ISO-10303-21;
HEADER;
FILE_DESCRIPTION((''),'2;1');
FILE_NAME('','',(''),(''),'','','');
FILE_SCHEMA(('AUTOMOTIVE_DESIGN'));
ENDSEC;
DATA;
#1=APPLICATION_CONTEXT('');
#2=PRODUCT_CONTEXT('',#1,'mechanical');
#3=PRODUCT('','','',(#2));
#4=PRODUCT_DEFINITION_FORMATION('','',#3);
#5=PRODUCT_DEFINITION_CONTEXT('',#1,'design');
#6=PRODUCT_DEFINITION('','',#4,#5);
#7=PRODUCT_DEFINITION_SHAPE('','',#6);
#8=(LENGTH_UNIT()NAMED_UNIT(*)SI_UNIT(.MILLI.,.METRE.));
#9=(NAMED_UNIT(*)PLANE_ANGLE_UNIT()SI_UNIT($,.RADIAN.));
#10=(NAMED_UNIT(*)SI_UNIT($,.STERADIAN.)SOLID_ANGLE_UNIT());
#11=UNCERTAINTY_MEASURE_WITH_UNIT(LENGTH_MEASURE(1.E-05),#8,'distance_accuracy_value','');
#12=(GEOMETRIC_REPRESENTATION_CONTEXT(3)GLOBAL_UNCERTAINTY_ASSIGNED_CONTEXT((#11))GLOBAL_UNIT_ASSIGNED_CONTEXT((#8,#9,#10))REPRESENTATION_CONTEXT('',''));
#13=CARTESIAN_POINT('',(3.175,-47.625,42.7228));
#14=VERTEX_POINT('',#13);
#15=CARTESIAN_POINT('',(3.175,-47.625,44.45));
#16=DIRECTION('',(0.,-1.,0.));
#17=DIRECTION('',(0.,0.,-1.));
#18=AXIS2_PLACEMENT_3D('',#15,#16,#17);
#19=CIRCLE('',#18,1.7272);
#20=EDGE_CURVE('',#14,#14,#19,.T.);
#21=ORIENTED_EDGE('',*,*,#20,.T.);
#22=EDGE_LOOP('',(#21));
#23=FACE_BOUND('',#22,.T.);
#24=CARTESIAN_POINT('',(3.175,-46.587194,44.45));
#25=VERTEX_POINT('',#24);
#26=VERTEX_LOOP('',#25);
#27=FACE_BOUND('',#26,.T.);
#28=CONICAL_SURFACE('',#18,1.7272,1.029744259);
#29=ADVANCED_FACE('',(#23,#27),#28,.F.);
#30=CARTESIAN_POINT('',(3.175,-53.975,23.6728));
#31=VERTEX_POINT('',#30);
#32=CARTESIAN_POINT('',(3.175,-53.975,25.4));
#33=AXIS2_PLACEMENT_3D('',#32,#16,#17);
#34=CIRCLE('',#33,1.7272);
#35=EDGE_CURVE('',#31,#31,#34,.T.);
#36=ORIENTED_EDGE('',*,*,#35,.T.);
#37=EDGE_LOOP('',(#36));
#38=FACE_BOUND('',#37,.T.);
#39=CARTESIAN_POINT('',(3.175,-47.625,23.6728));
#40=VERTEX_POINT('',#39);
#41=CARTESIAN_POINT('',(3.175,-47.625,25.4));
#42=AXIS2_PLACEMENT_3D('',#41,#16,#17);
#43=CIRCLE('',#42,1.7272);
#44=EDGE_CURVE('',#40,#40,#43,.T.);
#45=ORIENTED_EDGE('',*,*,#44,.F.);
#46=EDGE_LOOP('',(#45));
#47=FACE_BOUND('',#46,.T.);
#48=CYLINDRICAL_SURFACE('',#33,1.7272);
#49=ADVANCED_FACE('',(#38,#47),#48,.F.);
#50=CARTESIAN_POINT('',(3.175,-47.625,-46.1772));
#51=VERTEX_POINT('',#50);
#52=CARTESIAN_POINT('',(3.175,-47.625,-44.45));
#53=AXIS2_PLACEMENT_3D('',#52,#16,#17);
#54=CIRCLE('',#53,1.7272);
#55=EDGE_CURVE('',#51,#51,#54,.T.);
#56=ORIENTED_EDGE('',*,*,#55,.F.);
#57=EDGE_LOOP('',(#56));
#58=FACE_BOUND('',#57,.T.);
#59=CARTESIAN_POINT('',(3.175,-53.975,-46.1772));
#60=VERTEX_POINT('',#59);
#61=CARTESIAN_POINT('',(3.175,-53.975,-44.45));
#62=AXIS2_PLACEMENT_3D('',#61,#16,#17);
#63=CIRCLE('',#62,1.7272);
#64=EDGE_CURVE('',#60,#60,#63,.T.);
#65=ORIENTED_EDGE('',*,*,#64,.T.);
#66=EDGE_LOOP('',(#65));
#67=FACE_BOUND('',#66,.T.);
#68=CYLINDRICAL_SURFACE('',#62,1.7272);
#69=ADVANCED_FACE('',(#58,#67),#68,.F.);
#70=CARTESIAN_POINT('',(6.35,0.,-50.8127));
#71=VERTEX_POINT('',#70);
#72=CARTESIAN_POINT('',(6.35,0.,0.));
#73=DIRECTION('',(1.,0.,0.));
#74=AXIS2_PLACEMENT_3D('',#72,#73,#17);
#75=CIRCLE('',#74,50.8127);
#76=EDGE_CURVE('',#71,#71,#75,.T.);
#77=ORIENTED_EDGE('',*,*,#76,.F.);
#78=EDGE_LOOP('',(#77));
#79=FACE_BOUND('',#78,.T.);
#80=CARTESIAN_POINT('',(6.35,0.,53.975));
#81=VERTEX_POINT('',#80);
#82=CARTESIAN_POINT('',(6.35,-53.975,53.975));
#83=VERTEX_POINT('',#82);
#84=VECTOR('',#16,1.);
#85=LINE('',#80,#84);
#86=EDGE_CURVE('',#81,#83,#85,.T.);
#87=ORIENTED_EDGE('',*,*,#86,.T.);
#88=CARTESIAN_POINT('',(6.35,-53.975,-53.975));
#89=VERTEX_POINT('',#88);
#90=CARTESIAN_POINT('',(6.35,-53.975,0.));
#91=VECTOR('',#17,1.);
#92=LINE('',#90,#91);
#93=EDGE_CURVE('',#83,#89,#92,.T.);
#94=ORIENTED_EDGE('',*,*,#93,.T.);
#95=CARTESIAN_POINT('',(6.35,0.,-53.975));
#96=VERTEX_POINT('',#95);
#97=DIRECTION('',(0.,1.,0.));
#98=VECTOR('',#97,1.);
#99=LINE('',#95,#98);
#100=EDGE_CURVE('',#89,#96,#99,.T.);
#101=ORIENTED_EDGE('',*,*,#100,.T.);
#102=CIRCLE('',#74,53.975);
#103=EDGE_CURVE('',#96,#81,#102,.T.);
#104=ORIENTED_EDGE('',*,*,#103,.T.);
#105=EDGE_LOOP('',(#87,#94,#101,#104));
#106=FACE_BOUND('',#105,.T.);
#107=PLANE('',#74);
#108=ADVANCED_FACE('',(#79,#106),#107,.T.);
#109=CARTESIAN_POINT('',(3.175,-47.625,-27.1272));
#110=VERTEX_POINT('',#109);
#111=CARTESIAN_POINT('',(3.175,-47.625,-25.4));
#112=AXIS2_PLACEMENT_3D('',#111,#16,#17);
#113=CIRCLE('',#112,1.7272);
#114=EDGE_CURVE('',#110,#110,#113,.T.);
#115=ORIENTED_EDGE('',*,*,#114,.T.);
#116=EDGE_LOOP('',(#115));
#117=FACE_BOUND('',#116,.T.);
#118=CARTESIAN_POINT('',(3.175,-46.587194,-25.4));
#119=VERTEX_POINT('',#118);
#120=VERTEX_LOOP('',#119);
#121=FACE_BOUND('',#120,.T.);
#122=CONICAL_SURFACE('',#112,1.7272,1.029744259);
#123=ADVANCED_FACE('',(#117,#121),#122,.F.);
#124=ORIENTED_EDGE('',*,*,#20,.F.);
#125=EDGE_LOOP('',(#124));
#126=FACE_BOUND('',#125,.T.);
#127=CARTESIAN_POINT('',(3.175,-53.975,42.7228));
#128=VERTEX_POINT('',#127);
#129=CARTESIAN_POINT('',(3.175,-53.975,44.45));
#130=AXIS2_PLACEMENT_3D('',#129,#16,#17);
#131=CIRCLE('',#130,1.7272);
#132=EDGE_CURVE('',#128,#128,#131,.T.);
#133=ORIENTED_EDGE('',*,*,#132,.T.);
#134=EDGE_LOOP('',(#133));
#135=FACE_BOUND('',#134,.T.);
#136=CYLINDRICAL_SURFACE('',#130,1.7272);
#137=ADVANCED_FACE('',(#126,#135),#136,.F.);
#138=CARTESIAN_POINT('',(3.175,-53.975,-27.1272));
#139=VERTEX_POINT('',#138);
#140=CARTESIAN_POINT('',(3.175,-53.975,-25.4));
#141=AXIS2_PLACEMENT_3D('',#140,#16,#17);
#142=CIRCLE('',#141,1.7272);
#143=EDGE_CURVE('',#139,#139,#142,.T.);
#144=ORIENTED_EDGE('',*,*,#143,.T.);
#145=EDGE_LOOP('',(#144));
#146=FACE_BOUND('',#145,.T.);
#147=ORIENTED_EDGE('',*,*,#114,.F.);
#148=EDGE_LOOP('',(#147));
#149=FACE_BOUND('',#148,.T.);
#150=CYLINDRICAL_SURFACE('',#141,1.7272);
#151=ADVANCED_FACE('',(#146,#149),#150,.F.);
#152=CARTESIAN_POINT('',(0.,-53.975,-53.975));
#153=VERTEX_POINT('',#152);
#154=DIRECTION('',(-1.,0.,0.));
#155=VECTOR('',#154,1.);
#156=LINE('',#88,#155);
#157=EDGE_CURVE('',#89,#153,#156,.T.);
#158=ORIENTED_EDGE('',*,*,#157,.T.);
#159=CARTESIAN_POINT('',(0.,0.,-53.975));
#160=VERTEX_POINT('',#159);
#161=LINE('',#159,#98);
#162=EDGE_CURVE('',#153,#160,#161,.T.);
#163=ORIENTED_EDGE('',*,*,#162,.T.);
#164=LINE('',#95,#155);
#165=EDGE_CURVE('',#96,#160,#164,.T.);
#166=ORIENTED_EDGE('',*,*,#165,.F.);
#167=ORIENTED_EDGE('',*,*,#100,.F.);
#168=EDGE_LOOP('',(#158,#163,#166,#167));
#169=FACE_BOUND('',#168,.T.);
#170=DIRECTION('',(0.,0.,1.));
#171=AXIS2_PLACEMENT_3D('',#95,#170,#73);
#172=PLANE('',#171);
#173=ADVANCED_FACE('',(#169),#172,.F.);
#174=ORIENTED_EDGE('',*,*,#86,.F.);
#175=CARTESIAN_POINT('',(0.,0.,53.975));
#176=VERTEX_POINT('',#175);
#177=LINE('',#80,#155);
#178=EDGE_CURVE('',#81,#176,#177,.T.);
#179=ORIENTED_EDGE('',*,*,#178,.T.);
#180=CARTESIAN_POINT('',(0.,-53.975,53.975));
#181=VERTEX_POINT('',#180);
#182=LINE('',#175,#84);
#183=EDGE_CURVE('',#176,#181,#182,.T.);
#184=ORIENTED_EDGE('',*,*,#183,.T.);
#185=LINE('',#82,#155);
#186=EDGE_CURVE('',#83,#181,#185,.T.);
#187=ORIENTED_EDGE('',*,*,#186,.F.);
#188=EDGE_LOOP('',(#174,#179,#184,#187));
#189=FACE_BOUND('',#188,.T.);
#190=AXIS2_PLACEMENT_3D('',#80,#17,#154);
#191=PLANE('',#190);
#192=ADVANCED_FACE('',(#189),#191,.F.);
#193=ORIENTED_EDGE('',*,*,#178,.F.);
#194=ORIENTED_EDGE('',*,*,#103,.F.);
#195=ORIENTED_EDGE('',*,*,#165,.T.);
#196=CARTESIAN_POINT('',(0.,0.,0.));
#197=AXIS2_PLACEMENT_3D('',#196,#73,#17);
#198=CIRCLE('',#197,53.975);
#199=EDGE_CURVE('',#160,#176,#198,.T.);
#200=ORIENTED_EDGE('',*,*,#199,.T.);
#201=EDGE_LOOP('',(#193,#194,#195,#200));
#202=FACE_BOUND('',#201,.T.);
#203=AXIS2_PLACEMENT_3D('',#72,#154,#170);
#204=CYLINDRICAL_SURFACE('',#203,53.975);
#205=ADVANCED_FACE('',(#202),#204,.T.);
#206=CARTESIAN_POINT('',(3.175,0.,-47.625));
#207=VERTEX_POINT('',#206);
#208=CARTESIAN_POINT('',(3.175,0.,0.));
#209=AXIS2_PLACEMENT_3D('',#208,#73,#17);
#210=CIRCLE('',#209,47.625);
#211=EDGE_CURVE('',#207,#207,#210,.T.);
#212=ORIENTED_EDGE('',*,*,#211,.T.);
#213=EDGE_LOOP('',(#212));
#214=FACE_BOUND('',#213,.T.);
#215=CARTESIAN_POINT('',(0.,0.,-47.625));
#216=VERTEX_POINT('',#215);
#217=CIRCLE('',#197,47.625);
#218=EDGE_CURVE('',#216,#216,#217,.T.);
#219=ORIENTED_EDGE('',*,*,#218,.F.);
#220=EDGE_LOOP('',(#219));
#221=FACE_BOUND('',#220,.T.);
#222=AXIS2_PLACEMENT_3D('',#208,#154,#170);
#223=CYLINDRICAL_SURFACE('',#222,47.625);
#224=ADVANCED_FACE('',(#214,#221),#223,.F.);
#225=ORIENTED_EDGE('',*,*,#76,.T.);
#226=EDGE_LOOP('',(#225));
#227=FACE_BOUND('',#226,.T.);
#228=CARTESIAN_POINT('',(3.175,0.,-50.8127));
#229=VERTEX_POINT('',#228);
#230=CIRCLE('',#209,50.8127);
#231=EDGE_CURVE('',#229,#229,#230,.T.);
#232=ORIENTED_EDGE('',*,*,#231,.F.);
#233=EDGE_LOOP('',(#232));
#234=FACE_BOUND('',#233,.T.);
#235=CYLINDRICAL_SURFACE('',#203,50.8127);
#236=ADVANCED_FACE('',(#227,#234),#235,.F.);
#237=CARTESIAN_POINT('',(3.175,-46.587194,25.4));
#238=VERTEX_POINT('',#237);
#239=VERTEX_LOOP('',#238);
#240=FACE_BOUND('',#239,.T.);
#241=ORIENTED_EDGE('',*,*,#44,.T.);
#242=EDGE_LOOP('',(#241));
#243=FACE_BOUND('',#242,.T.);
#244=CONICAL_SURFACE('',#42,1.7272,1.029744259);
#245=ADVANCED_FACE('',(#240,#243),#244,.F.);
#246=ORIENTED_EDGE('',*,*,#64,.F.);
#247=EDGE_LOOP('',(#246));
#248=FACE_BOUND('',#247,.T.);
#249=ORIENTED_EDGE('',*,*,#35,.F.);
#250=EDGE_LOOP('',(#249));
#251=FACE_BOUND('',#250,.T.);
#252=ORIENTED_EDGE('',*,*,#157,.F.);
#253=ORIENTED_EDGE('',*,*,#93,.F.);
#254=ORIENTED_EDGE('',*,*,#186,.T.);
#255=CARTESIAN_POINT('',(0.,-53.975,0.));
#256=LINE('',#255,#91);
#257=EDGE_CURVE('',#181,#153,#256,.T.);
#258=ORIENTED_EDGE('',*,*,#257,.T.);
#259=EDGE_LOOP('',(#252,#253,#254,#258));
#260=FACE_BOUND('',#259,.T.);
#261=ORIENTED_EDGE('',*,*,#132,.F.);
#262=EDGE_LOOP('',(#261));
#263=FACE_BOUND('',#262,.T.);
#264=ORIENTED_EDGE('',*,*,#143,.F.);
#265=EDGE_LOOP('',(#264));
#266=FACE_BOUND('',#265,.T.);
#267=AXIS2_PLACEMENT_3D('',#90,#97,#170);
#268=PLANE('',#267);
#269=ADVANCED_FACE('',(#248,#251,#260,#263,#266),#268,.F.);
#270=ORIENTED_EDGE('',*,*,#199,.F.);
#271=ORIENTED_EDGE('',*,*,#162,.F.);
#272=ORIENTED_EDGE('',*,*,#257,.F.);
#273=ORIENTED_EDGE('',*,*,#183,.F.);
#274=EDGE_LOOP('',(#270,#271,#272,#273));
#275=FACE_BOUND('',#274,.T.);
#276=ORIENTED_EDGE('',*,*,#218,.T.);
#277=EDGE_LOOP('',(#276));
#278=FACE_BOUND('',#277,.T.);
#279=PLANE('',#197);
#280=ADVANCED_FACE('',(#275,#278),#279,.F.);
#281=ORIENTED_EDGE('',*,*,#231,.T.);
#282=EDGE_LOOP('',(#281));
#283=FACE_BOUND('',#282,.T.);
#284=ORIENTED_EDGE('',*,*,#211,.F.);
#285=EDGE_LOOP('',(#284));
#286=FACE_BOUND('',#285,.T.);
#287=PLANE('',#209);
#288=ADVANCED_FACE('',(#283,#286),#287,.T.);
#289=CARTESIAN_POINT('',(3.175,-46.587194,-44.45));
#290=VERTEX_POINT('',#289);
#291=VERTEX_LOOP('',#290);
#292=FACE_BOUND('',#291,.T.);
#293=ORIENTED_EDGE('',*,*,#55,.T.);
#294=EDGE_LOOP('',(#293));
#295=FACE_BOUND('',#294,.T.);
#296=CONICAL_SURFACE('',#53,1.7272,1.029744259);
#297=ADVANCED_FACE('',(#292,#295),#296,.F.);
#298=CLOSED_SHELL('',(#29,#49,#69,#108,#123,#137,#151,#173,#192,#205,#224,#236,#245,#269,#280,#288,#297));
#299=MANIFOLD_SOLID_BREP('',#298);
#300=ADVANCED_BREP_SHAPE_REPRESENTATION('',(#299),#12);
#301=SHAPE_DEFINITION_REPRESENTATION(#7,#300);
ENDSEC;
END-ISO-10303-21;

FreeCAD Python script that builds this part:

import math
import FreeCAD as App
import Part
import Sketcher
Q = App.Units.Quantity

doc = App.newDocument("Part")
body = doc.addObject("PartDesign::Body", "Body")

sketch1 = body.newObject("Sketcher::SketchObject", "Sketch")
sketch1.AttachmentSupport = (doc.getObject("YZ_Plane"), [""])
sketch1.MapMode = "FlatFace"
sketch1.addGeometry([
    Part.LineSegment(App.Vector(-53.975, -53.975, 0), App.Vector(0, -53.975, 0)),
    Part.ArcOfCircle(Part.Circle(App.Vector(0, 0, 0), App.Vector(0, 0, 1), 53.975), math.radians(-90), math.radians(90)),
    Part.LineSegment(App.Vector(0, 53.975, 0), App.Vector(-53.975, 53.975, 0)),
    Part.LineSegment(App.Vector(-53.975, 53.975, 0), App.Vector(-53.975, -53.975, 0)),
    Part.Circle(App.Vector(0, 0, 0), App.Vector(0, 0, 1), 50.8127),
], False)
sketch1.addConstraint([
    Sketcher.Constraint("Tangent", 0, 2, 1, 1),
    Sketcher.Constraint("Tangent", 1, 2, 2, 1),
    Sketcher.Constraint("Coincident", 2, 2, 3, 1),
    Sketcher.Constraint("Coincident", 3, 2, 0, 1),
    Sketcher.Constraint("Horizontal", 0),
    Sketcher.Constraint("Horizontal", 2),
    Sketcher.Constraint("Vertical", 3),
    Sketcher.Constraint("Coincident", 1, 3, -1, 1),
    Sketcher.Constraint("Coincident", 4, 3, -1, 1),
    Sketcher.Constraint("Diameter", 4, Q("4.001 in")),
    Sketcher.Constraint("Radius", 1, Q("2.125 in")),
    Sketcher.Constraint("DistanceX", 0, 1, 0, 2, Q("2.125 in")),
])
pad1 = body.newObject("PartDesign::Pad", "Pad")
pad1.Profile = sketch1
pad1.Length = Q("0.25 in")

sketch2 = body.newObject("Sketcher::SketchObject", "Sketch001")
sketch2.AttachmentSupport = (doc.getObject("YZ_Plane"), [""])
sketch2.MapMode = "FlatFace"
sketch2.addGeometry([
    Part.Circle(App.Vector(0, 0, 0), App.Vector(0, 0, 1), 50.8127),
    Part.Circle(App.Vector(0, 0, 0), App.Vector(0, 0, 1), 47.625),
], False)
sketch2.addConstraint([
    Sketcher.Constraint("Coincident", 0, 3, -1, 1),
    Sketcher.Constraint("Coincident", 1, 3, -1, 1),
    Sketcher.Constraint("Diameter", 1, Q("3.75 in")),
    Sketcher.Constraint("Diameter", 0, Q("4.001 in")),
])
pad2 = body.newObject("PartDesign::Pad", "Pad001")
pad2.Profile = sketch2
pad2.Length = Q("0.125 in")

sketch3 = body.newObject("Sketcher::SketchObject", "Sketch002")
sketch3.AttachmentSupport = (doc.getObject("XZ_Plane"), [""])
sketch3.MapMode = "FlatFace"
sketch3.AttachmentOffset = App.Placement(App.Vector(0, 0, 2.125 * 25.4), App.Rotation())
sketch3.addGeometry([
    Part.Circle(App.Vector(3.175, -44.45, 0), App.Vector(0, 0, 1), 1.7272),
    Part.Circle(App.Vector(3.175, -25.4, 0), App.Vector(0, 0, 1), 1.7272),
    Part.Circle(App.Vector(3.175, 25.4, 0), App.Vector(0, 0, 1), 1.7272),
    Part.Circle(App.Vector(3.175, 44.45, 0), App.Vector(0, 0, 1), 1.7272),
], False)
sketch3.addConstraint([
    Sketcher.Constraint("Equal", 0, 1),
    Sketcher.Constraint("Equal", 1, 2),
    Sketcher.Constraint("Equal", 2, 3),
    Sketcher.Constraint("Symmetric", 1, 3, 2, 3, -1),
    Sketcher.Constraint("Symmetric", 0, 3, 3, 3, -1),
    Sketcher.Constraint("Vertical", 0, 3, 1, 3),
    Sketcher.Constraint("Diameter", 0, Q("0.136 in")),
    Sketcher.Constraint("DistanceY", 1, 3, -1, 1, Q("1 in")),
    Sketcher.Constraint("DistanceY", 0, 3, 3, 3, Q("3.5 in")),
    Sketcher.Constraint("DistanceX", -1, 1, 0, 3, Q("0.125 in")),
])
doc.recompute()
hole = body.newObject("PartDesign::Hole", "Hole")
hole.Profile = sketch3
hole.ThreadType = "None"
hole.Diameter = Q("0.136 in")
hole.DepthType = "Dimension"
hole.Depth = Q("0.25 in")
hole.DrillPoint = "Angled"
hole.DrillPointAngle = 118

doc.recompute()
